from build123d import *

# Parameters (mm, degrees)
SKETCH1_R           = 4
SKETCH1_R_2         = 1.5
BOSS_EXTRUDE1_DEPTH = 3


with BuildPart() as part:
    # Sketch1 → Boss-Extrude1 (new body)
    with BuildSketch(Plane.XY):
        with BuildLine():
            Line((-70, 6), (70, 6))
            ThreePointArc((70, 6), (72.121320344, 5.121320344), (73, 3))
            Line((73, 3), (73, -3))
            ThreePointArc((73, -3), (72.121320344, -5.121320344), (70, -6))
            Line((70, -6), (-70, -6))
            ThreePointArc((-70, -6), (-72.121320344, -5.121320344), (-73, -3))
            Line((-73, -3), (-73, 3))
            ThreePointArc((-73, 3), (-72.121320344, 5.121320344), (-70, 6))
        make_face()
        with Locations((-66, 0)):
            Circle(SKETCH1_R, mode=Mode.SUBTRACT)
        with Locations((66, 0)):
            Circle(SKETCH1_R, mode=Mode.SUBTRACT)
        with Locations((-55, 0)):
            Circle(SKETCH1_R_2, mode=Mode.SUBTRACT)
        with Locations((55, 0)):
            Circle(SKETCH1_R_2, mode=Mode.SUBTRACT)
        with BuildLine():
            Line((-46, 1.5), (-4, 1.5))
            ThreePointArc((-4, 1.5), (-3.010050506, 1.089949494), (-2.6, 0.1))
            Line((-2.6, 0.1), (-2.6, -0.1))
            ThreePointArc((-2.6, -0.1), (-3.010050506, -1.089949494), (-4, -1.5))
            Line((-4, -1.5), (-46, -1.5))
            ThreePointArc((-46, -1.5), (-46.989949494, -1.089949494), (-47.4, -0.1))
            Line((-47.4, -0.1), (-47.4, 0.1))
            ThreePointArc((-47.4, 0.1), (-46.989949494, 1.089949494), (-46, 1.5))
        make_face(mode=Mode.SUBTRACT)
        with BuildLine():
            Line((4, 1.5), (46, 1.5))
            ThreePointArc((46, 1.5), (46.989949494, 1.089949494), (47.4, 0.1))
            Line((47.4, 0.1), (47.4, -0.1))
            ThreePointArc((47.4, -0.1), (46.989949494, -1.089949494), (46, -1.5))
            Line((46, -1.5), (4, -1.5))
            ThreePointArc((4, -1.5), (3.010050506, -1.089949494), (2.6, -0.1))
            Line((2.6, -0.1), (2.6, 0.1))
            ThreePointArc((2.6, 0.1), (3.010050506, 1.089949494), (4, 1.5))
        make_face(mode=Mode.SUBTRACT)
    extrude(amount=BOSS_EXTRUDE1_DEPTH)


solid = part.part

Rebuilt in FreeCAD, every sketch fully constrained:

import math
import FreeCAD as App
import Part
import Sketcher

V = App.Vector
Q = App.Units.Quantity

doc = App.newDocument("Part")
body = doc.addObject("PartDesign::Body", "Body")

# Sketch on XY plane
sketch1 = body.newObject("Sketcher::SketchObject", "Sketch")
sketch1.AttachmentSupport = (doc.getObject("XY_Plane"), [""])
sketch1.MapMode = "FlatFace"
sketch1.addGeometry(Part.LineSegment(V(70, 6, 0), V(-70, 6, 0)), False)
sketch1.addGeometry(Part.ArcOfCircle(Part.Circle(V(-70, 3, 0), V(0, 0, 1), 3), math.radians(90), math.radians(180)), False)
sketch1.addGeometry(Part.LineSegment(V(-73, 3, 0), V(-73, -3, 0)), False)
sketch1.addGeometry(Part.ArcOfCircle(Part.Circle(V(-70, -3, 0), V(0, 0, 1), 3), math.radians(180), math.radians(270)), False)
sketch1.addGeometry(Part.LineSegment(V(-70, -6, 0), V(70, -6, 0)), False)
sketch1.addGeometry(Part.ArcOfCircle(Part.Circle(V(70, -3, 0), V(0, 0, 1), 3), math.radians(-90), math.radians(0)), False)
sketch1.addGeometry(Part.LineSegment(V(73, -3, 0), V(73, 3, 0)), False)
sketch1.addGeometry(Part.ArcOfCircle(Part.Circle(V(70, 3, 0), V(0, 0, 1), 3), math.radians(0), math.radians(90)), False)
sketch1.addGeometry(Part.LineSegment(V(4, 1.5, 0), V(46, 1.5, 0)), False)
sketch1.addGeometry(Part.ArcOfCircle(Part.Circle(V(46, 0.1, 0), V(0, 0, 1), 1.4), math.radians(0), math.radians(90)), False)
sketch1.addGeometry(Part.LineSegment(V(47.4, 0.1, 0), V(47.4, -0.1, 0)), False)
sketch1.addGeometry(Part.ArcOfCircle(Part.Circle(V(46, -0.1, 0), V(0, 0, 1), 1.4), math.radians(-90), math.radians(0)), False)
sketch1.addGeometry(Part.LineSegment(V(46, -1.5, 0), V(4, -1.5, 0)), False)
sketch1.addGeometry(Part.ArcOfCircle(Part.Circle(V(4, -0.1, 0), V(0, 0, 1), 1.4), math.radians(180), math.radians(270)), False)
sketch1.addGeometry(Part.LineSegment(V(2.6, -0.1, 0), V(2.6, 0.1, 0)), False)
sketch1.addGeometry(Part.ArcOfCircle(Part.Circle(V(4, 0.1, 0), V(0, 0, 1), 1.4), math.radians(90), math.radians(180)), False)
sketch1.addGeometry(Part.Circle(V(66, 0, 0), V(0, 0, 1), 4), False)
sketch1.addGeometry(Part.Circle(V(55, 0, 0), V(0, 0, 1), 1.5), False)
sketch1.addGeometry(Part.LineSegment(V(-46, 1.5, 0), V(-4, 1.5, 0)), False)
sketch1.addGeometry(Part.ArcOfCircle(Part.Circle(V(-4, 0.1, 0), V(0, 0, 1), 1.4), math.radians(0), math.radians(90)), False)
sketch1.addGeometry(Part.LineSegment(V(-2.6, 0.1, 0), V(-2.6, -0.1, 0)), False)
sketch1.addGeometry(Part.ArcOfCircle(Part.Circle(V(-4, -0.1, 0), V(0, 0, 1), 1.4), math.radians(-90), math.radians(0)), False)
sketch1.addGeometry(Part.LineSegment(V(-4, -1.5, 0), V(-46, -1.5, 0)), False)
sketch1.addGeometry(Part.ArcOfCircle(Part.Circle(V(-46, -0.1, 0), V(0, 0, 1), 1.4), math.radians(180), math.radians(270)), False)
sketch1.addGeometry(Part.LineSegment(V(-47.4, -0.1, 0), V(-47.4, 0.1, 0)), False)
sketch1.addGeometry(Part.ArcOfCircle(Part.Circle(V(-46, 0.1, 0), V(0, 0, 1), 1.4), math.radians(90), math.radians(180)), False)
sketch1.addGeometry(Part.Circle(V(-55, 0, 0), V(0, 0, 1), 1.5), False)
sketch1.addGeometry(Part.Circle(V(-66, 0, 0), V(0, 0, 1), 4), False)
sketch1.addConstraint(Sketcher.Constraint("Tangent", 0, 2, 1, 1))
sketch1.addConstraint(Sketcher.Constraint("Tangent", 1, 2, 2, 1))
sketch1.addConstraint(Sketcher.Constraint("Tangent", 2, 2, 3, 1))
sketch1.addConstraint(Sketcher.Constraint("Tangent", 3, 2, 4, 1))
sketch1.addConstraint(Sketcher.Constraint("Tangent", 4, 2, 5, 1))
sketch1.addConstraint(Sketcher.Constraint("Tangent", 5, 2, 6, 1))
sketch1.addConstraint(Sketcher.Constraint("Tangent", 6, 2, 7, 1))
sketch1.addConstraint(Sketcher.Constraint("Tangent", 7, 2, 0, 1))
sketch1.addConstraint(Sketcher.Constraint("Tangent", 8, 2, 9, 2))
sketch1.addConstraint(Sketcher.Constraint("Tangent", 9, 1, 10, 1))
sketch1.addConstraint(Sketcher.Constraint("Tangent", 10, 2, 11, 2))
sketch1.addConstraint(Sketcher.Constraint("Tangent", 11, 1, 12, 1))
sketch1.addConstraint(Sketcher.Constraint("Tangent", 12, 2, 13, 2))
sketch1.addConstraint(Sketcher.Constraint("Tangent", 13, 1, 14, 1))
sketch1.addConstraint(Sketcher.Constraint("Tangent", 14, 2, 15, 2))
sketch1.addConstraint(Sketcher.Constraint("Tangent", 15, 1, 8, 1))
sketch1.addConstraint(Sketcher.Constraint("Tangent", 18, 2, 19, 2))
sketch1.addConstraint(Sketcher.Constraint("Tangent", 19, 1, 20, 1))
sketch1.addConstraint(Sketcher.Constraint("Tangent", 20, 2, 21, 2))
sketch1.addConstraint(Sketcher.Constraint("Tangent", 21, 1, 22, 1))
sketch1.addConstraint(Sketcher.Constraint("Tangent", 22, 2, 23, 2))
sketch1.addConstraint(Sketcher.Constraint("Tangent", 23, 1, 24, 1))
sketch1.addConstraint(Sketcher.Constraint("Tangent", 24, 2, 25, 2))
sketch1.addConstraint(Sketcher.Constraint("Tangent", 25, 1, 18, 1))
sketch1.addConstraint(Sketcher.Constraint("Horizontal", 0))
sketch1.addConstraint(Sketcher.Constraint("Vertical", 2))
sketch1.addConstraint(Sketcher.Constraint("Horizontal", 4))
sketch1.addConstraint(Sketcher.Constraint("Vertical", 6))
sketch1.addConstraint(Sketcher.Constraint("Horizontal", 8))
sketch1.addConstraint(Sketcher.Constraint("Vertical", 10))
sketch1.addConstraint(Sketcher.Constraint("Horizontal", 12))
sketch1.addConstraint(Sketcher.Constraint("Vertical", 14))
sketch1.addConstraint(Sketcher.Constraint("Horizontal", 18))
sketch1.addConstraint(Sketcher.Constraint("Vertical", 20))
sketch1.addConstraint(Sketcher.Constraint("Horizontal", 22))
sketch1.addConstraint(Sketcher.Constraint("Vertical", 24))
sketch1.addConstraint(Sketcher.Constraint("Equal", 1, 3))
sketch1.addConstraint(Sketcher.Constraint("Equal", 3, 5))
sketch1.addConstraint(Sketcher.Constraint("Equal", 5, 7))
sketch1.addConstraint(Sketcher.Constraint("Equal", 9, 11))
sketch1.addConstraint(Sketcher.Constraint("Equal", 11, 13))
sketch1.addConstraint(Sketcher.Constraint("Equal", 13, 15))
sketch1.addConstraint(Sketcher.Constraint("Equal", 15, 19))
sketch1.addConstraint(Sketcher.Constraint("Equal", 19, 21))
sketch1.addConstraint(Sketcher.Constraint("Equal", 21, 23))
sketch1.addConstraint(Sketcher.Constraint("Equal", 23, 25))
sketch1.addConstraint(Sketcher.Constraint("Equal", 17, 26))
sketch1.addConstraint(Sketcher.Constraint("Equal", 16, 27))
sketch1.addConstraint(Sketcher.Constraint("Symmetric", 1, 3, 5, 3, -1, 1))
sketch1.addConstraint(Sketcher.Constraint("Symmetric", 13, 3, 19, 3, -1, 1))
sketch1.addConstraint(Sketcher.Constraint("Symmetric", 9, 3, 23, 3, -1, 1))
sketch1.addConstraint(Sketcher.Constraint("Symmetric", 17, 3, 26, 3, -1, 1))
sketch1.addConstraint(Sketcher.Constraint("Symmetric", 16, 3, 27, 3, -1, 1))
sketch1.addConstraint(Sketcher.Constraint("PointOnObject", 16, 3, -1))
sketch1.addConstraint(Sketcher.Constraint("PointOnObject", 17, 3, -1))
sketch1.addConstraint(Sketcher.Constraint("Horizontal", 15, 3, 19, 3))
sketch1.addConstraint(Sketcher.Constraint("Diameter", 16, Q("8 mm")))
sketch1.addConstraint(Sketcher.Constraint("Diameter", 17, Q("3 mm")))
sketch1.addConstraint(Sketcher.Constraint("Radius", 1, Q("3 mm")))
sketch1.addConstraint(Sketcher.Constraint("Radius", 9, Q("1.4 mm")))
sketch1.addConstraint(Sketcher.Constraint("DistanceX", 0, 2, 0, 1, Q("140 mm")))
sketch1.addConstraint(Sketcher.Constraint("DistanceX", 8, 1, 8, 2, Q("42 mm")))
sketch1.addConstraint(Sketcher.Constraint("DistanceY", 2, 2, 2, 1, Q("6 mm")))
sketch1.addConstraint(Sketcher.Constraint("DistanceY", 10, 2, 10, 1, Q("0.2 mm")))
sketch1.addConstraint(Sketcher.Constraint("DistanceX", -1, 1, 9, 3, Q("46 mm")))
sketch1.addConstraint(Sketcher.Constraint("DistanceX", -1, 1, 16, 3, Q("66 mm")))
sketch1.addConstraint(Sketcher.Constraint("DistanceX", -1, 1, 17, 3, Q("55 mm")))
pad1 = body.newObject("PartDesign::Pad", "Pad")
pad1.Profile = sketch1
pad1.Length = 3

doc.recompute()
